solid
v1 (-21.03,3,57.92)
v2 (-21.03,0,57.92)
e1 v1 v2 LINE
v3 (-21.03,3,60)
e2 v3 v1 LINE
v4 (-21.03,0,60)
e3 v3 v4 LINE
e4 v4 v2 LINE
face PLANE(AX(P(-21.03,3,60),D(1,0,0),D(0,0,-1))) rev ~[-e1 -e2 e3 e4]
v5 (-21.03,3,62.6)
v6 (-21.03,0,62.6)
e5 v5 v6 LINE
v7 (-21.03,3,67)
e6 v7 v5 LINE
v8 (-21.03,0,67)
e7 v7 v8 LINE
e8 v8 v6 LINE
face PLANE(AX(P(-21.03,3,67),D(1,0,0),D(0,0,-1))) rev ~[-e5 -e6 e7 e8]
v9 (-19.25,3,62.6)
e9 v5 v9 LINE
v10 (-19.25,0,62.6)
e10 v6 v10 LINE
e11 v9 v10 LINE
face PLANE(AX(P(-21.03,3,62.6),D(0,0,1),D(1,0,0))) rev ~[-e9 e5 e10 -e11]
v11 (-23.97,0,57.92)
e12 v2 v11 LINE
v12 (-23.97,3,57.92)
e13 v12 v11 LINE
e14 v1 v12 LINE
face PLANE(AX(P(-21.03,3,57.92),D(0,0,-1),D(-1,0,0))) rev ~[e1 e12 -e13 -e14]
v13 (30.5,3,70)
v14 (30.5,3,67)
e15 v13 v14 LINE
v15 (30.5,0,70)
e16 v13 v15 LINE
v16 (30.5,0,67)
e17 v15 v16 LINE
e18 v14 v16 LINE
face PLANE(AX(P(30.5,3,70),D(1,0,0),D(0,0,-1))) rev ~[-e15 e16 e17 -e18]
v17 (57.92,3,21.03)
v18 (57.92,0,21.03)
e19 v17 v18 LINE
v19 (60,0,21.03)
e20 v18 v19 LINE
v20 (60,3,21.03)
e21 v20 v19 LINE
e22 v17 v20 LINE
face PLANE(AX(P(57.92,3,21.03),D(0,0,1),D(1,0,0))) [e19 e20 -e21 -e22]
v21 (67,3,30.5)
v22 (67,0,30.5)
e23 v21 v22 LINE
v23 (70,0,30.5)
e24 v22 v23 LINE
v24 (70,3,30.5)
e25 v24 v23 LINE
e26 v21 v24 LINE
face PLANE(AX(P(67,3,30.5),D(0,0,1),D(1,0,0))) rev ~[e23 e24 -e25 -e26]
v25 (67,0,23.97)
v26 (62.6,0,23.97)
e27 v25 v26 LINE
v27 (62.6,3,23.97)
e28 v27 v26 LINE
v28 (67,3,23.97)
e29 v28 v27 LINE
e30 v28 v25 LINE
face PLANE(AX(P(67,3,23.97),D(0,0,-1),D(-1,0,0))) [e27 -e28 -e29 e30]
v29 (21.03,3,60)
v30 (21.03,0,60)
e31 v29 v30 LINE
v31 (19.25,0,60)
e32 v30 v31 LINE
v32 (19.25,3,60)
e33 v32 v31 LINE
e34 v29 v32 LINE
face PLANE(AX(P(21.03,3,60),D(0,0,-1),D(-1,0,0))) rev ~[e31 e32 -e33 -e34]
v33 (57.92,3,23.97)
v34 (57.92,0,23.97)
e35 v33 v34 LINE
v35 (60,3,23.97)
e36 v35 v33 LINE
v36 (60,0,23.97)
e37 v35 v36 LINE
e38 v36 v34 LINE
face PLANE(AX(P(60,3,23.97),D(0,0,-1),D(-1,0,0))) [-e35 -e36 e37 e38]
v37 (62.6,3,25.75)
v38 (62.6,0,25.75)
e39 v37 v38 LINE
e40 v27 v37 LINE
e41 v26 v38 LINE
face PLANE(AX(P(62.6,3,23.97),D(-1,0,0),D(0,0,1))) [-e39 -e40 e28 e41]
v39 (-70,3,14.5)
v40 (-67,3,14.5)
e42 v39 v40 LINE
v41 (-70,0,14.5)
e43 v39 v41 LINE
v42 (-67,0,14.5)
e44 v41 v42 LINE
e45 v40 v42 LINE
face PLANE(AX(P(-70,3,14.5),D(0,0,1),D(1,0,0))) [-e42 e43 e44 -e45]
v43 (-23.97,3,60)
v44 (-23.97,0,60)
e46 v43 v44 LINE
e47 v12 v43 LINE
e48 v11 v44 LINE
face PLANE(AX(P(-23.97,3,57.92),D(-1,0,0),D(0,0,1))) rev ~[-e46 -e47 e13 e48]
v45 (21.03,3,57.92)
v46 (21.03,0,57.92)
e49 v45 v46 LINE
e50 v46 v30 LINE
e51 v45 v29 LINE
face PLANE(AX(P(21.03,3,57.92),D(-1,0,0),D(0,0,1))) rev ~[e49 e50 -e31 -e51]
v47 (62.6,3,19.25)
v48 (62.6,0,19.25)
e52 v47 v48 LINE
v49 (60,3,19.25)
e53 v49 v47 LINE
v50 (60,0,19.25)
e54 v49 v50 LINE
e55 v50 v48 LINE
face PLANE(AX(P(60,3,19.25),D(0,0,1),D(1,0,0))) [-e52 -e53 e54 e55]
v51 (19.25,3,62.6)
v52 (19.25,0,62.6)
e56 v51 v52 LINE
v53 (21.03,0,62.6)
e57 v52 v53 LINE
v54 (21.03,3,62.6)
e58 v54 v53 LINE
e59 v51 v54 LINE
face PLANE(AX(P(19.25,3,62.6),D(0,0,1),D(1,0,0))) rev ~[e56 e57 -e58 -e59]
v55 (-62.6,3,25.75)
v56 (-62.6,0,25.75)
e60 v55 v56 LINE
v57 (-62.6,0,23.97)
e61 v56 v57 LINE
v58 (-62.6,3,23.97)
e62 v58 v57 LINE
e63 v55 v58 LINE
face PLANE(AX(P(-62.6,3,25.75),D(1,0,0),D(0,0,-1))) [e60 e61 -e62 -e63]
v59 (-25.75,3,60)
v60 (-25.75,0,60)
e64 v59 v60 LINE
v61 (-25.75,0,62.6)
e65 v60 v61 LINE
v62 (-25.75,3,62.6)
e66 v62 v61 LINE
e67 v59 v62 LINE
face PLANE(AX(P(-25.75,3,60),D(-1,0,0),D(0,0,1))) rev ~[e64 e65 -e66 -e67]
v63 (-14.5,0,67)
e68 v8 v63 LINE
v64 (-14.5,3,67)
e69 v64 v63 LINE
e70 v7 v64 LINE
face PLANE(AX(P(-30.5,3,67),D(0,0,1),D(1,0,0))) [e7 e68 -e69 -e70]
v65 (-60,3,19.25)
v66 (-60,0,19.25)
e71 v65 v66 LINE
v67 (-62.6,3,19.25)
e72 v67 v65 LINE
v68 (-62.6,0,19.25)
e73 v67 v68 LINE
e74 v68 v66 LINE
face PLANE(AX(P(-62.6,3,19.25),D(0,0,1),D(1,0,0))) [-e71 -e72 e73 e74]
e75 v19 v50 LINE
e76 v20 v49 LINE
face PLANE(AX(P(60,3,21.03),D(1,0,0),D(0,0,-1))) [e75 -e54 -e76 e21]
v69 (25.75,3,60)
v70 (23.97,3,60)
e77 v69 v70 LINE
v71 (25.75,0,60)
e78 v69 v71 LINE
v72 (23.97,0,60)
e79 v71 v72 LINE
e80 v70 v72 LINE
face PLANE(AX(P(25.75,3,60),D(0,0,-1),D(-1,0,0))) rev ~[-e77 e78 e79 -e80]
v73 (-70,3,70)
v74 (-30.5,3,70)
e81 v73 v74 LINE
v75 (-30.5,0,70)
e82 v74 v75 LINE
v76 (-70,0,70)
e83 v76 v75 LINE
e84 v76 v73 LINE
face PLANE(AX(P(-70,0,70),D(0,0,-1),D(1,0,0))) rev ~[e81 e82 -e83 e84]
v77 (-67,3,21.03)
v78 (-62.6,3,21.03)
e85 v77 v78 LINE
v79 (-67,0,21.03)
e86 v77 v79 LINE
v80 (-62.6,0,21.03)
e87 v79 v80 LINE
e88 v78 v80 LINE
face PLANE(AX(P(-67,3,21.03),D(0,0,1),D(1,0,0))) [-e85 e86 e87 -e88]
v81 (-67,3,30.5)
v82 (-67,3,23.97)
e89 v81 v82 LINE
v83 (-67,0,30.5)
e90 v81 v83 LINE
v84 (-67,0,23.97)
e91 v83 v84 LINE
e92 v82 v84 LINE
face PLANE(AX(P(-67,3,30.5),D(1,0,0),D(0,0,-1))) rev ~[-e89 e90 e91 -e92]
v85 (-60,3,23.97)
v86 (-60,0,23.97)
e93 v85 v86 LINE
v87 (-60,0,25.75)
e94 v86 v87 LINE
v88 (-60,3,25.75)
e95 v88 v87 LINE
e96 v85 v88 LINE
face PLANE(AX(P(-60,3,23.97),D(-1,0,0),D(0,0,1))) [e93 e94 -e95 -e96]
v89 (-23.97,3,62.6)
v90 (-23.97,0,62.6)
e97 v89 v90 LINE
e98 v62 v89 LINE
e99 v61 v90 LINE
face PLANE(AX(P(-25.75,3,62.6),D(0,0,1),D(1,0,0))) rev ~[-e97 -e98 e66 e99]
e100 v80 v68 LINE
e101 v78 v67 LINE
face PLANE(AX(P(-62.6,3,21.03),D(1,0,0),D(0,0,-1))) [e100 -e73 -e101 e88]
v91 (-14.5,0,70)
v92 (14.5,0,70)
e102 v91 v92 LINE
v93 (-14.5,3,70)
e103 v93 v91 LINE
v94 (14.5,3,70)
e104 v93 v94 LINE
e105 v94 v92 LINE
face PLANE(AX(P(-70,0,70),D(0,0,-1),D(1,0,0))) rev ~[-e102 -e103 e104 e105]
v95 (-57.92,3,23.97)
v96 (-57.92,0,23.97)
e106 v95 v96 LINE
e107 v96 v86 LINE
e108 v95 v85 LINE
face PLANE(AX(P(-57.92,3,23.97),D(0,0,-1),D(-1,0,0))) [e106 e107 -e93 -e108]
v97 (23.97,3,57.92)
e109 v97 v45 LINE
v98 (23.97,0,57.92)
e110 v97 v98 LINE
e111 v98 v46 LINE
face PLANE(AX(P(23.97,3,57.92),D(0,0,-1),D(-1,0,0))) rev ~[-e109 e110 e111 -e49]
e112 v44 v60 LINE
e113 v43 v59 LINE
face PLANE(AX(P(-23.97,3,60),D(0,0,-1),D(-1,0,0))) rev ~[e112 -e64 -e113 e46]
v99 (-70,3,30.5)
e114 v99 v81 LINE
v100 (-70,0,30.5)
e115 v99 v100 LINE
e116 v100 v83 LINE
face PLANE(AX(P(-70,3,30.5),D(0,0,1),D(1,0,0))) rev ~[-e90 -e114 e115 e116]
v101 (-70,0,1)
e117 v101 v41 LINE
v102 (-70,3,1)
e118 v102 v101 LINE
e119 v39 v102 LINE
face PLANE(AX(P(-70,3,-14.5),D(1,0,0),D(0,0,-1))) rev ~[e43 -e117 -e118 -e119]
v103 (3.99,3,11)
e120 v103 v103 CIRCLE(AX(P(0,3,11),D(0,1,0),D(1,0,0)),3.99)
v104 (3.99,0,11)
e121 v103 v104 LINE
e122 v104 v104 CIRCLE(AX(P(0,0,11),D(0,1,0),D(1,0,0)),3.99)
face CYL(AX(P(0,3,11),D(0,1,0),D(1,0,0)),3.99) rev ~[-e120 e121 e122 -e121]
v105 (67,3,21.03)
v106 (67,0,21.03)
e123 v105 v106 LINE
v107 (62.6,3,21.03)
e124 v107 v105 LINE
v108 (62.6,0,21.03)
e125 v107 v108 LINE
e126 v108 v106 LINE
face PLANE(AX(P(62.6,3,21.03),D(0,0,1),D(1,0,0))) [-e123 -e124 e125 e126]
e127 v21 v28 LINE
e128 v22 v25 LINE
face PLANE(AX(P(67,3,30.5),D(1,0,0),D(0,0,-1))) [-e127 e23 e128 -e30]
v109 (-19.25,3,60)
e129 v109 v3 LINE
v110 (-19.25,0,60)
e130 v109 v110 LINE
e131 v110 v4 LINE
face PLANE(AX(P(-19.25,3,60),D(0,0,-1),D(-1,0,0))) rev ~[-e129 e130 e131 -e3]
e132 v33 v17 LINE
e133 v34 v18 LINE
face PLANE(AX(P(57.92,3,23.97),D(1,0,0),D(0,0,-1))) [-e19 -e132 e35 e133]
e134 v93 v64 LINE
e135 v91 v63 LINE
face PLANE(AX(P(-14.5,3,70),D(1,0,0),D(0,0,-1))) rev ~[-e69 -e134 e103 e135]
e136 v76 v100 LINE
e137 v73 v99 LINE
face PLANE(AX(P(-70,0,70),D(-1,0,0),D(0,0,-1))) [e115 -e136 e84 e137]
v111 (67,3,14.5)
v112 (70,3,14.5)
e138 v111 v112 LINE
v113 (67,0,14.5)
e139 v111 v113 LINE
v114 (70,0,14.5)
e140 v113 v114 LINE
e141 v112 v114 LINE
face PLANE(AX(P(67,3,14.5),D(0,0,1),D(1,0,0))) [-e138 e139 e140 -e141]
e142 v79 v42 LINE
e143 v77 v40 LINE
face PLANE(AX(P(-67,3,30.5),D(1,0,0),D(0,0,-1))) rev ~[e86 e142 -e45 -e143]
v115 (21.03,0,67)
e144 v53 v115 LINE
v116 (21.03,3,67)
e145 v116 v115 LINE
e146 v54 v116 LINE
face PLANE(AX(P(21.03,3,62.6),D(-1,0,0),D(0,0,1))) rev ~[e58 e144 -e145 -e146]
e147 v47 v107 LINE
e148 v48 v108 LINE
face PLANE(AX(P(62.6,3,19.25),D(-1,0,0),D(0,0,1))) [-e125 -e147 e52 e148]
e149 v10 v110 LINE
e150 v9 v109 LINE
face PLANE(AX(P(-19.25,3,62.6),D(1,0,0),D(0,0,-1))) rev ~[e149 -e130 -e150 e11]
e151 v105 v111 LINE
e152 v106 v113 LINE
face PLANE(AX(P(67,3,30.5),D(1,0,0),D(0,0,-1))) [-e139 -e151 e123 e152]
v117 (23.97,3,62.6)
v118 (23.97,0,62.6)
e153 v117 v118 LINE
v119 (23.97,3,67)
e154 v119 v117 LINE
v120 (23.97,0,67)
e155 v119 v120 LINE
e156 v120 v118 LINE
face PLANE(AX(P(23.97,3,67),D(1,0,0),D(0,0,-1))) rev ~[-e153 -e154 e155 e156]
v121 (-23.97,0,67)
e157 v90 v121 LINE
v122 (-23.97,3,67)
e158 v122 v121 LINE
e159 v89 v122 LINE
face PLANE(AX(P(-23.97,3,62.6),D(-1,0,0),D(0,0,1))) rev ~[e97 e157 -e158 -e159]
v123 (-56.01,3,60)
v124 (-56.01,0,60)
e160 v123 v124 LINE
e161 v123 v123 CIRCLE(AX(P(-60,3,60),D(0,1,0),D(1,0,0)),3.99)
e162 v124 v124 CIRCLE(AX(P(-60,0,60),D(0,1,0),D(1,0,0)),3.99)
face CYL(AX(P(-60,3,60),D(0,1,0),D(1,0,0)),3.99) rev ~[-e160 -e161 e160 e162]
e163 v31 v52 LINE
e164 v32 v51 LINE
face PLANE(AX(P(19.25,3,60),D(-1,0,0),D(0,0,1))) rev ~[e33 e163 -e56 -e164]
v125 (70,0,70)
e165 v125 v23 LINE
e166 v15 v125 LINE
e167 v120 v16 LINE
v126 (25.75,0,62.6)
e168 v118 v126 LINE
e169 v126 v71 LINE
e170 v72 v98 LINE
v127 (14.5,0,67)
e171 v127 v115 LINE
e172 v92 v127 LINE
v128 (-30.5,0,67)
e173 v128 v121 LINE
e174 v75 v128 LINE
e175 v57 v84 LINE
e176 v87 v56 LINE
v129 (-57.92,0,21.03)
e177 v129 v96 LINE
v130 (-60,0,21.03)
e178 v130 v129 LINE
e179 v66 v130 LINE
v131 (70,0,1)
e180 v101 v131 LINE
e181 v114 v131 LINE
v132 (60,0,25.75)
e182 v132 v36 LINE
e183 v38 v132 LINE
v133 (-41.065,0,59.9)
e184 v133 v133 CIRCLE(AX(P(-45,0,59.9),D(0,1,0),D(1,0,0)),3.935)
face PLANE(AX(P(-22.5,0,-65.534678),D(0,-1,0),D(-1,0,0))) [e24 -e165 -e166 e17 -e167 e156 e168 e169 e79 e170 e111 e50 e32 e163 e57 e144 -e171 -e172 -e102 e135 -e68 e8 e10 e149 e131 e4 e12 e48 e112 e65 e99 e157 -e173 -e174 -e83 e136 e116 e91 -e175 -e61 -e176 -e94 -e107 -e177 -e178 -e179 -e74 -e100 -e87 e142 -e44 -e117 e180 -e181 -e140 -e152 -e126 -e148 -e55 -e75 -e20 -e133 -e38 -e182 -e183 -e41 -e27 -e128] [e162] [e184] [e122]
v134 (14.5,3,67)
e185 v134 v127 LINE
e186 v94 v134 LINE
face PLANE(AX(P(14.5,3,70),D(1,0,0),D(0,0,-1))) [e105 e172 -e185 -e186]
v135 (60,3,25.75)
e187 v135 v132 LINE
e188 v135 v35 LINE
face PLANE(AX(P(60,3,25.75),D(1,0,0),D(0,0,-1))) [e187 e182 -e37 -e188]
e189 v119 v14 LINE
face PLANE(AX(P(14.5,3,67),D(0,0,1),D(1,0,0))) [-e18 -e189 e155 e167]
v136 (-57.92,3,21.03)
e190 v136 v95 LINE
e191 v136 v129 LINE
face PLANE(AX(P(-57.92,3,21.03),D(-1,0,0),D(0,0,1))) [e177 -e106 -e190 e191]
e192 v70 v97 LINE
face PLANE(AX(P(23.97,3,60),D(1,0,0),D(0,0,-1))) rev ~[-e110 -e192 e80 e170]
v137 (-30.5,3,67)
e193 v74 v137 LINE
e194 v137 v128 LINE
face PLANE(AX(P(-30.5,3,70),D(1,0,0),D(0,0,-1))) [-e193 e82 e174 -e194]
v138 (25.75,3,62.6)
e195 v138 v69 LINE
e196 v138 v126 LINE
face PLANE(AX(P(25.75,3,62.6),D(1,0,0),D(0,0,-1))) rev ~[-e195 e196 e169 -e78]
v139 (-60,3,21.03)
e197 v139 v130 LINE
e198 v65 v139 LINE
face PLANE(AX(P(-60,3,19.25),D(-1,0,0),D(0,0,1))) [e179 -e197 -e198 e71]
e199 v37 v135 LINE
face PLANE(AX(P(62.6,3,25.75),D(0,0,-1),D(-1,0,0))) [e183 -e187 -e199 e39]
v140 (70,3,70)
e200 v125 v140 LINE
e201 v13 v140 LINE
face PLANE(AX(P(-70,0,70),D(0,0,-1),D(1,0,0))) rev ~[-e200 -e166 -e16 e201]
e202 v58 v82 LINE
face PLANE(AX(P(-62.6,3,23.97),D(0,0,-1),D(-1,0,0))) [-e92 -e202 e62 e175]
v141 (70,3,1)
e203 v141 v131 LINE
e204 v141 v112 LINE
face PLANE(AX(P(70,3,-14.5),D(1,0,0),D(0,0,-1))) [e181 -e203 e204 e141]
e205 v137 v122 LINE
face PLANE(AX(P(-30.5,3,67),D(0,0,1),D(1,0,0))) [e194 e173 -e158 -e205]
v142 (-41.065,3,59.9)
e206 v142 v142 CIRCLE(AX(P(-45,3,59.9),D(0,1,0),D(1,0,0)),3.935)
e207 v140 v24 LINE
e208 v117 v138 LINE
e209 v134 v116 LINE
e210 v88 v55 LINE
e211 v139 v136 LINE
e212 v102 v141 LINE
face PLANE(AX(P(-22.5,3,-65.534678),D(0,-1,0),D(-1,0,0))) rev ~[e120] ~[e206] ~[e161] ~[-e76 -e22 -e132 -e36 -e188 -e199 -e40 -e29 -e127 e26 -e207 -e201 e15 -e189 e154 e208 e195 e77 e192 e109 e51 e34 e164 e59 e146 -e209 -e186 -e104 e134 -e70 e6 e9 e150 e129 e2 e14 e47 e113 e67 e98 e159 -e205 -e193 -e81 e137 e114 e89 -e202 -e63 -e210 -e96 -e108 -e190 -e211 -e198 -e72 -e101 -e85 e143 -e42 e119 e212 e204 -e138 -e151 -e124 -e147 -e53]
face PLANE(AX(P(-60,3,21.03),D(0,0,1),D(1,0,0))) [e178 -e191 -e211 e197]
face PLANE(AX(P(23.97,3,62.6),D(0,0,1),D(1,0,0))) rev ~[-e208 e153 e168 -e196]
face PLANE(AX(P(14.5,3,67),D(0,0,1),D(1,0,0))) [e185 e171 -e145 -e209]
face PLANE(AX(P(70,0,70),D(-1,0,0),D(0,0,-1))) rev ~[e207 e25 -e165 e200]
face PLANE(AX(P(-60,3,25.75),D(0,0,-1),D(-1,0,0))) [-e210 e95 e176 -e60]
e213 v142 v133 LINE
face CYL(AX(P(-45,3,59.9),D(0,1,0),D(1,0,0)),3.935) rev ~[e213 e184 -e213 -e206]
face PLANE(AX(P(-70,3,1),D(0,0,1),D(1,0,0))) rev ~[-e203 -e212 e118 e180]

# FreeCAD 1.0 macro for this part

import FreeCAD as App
import Part
import Sketcher
from FreeCAD import Vector


def add_polygon(sketch, points):
    """Adds a closed chain of lines whose ends are joined by coincident constraints."""
    first, n = sketch.GeometryCount, len(points)
    for a, b in zip(points, points[1:] + points[:1]):
        sketch.addGeometry(Part.LineSegment(App.Vector(*a, 0), App.Vector(*b, 0)), False)
    for i in range(n):
        sketch.addConstraint(Sketcher.Constraint("Coincident", first + i, 2, first + (i + 1) % n, 1))

doc = App.newDocument("Part")
body = doc.addObject("PartDesign::Body", "Body")
body.AllowCompound = True

# Sketch on XZ plane
sketch1 = body.newObject("Sketcher::SketchObject", "Sketch")
sketch1.AttachmentSupport = (doc.getObject("XZ_Plane"), [""])
sketch1.MapMode = "FlatFace"
add_polygon(sketch1, [(-70, -70), (-70, 70), (70, 70), (70, -70)])  # lines 0-3
sketch1.addConstraint(Sketcher.Constraint("Vertical", 0))
sketch1.addConstraint(Sketcher.Constraint("Horizontal", 1))
sketch1.addConstraint(Sketcher.Constraint("Vertical", 2))
sketch1.addConstraint(Sketcher.Constraint("Horizontal", 3))
sketch1.addConstraint(Sketcher.Constraint("Symmetric", 0, 2, 2, 2, -1, 1))
sketch1.addConstraint(Sketcher.Constraint("Equal", 3, 0))
sketch1.addConstraint(Sketcher.Constraint("DistanceX", 1, 1, 1, 2, 140.0))
pad1 = body.newObject("PartDesign::Pad", "Pad")
pad1.Profile = sketch1
pad1.Length = 3
pad1.Reversed = True

# Sketch on XZ plane
sketch2 = body.newObject("Sketcher::SketchObject", "Sketch001")
sketch2.AttachmentSupport = (doc.getObject("XZ_Plane"), [""])
sketch2.MapMode = "FlatFace"
sketch2.AttachmentOffset = App.Placement(Vector(0, 0, -3), App.Rotation())
add_polygon(sketch2, [(-30.5, -70), (-30.5, -67), (-14.5, -67), (-14.5, -70)])  # lines 0-3
add_polygon(sketch2, [(-30.5, 67), (-30.5, 70), (-14.5, 70), (-14.5, 67)])  # lines 4-7
add_polygon(sketch2, [(14.5, 67), (14.5, 70), (30.5, 70), (30.5, 67)])  # lines 8-11
add_polygon(sketch2, [(14.5, -70), (14.5, -67), (30.5, -67), (30.5, -70)])  # lines 12-15
add_polygon(sketch2, [(-70, -30.5), (-70, -14.5), (-67, -14.5), (-67, -30.5)])  # lines 16-19
add_polygon(sketch2, [(-70, 14.5), (-70, 30.5), (-67, 30.5), (-67, 14.5)])  # lines 20-23
add_polygon(sketch2, [(67, 14.5), (67, 30.5), (70, 30.5), (70, 14.5)])  # lines 24-27
add_polygon(sketch2, [(67, -30.5), (67, -14.5), (70, -14.5), (70, -30.5)])  # lines 28-31
sketch2.addConstraint(Sketcher.Constraint("Vertical", 0))
sketch2.addConstraint(Sketcher.Constraint("Horizontal", 1))
sketch2.addConstraint(Sketcher.Constraint("Vertical", 2))
sketch2.addConstraint(Sketcher.Constraint("Horizontal", 3))
sketch2.addConstraint(Sketcher.Constraint("Vertical", 4))
sketch2.addConstraint(Sketcher.Constraint("Horizontal", 5))
sketch2.addConstraint(Sketcher.Constraint("Vertical", 6))
sketch2.addConstraint(Sketcher.Constraint("Horizontal", 7))
sketch2.addConstraint(Sketcher.Constraint("Vertical", 8))
sketch2.addConstraint(Sketcher.Constraint("Horizontal", 9))
sketch2.addConstraint(Sketcher.Constraint("Vertical", 10))
sketch2.addConstraint(Sketcher.Constraint("Horizontal", 11))
sketch2.addConstraint(Sketcher.Constraint("Vertical", 12))
sketch2.addConstraint(Sketcher.Constraint("Horizontal", 13))
sketch2.addConstraint(Sketcher.Constraint("Vertical", 14))
sketch2.addConstraint(Sketcher.Constraint("Horizontal", 15))
sketch2.addConstraint(Sketcher.Constraint("Vertical", 16))
sketch2.addConstraint(Sketcher.Constraint("Horizontal", 17))
sketch2.addConstraint(Sketcher.Constraint("Vertical", 18))
sketch2.addConstraint(Sketcher.Constraint("Horizontal", 19))
sketch2.addConstraint(Sketcher.Constraint("Vertical", 20))
sketch2.addConstraint(Sketcher.Constraint("Horizontal", 21))
sketch2.addConstraint(Sketcher.Constraint("Vertical", 22))
sketch2.addConstraint(Sketcher.Constraint("Horizontal", 23))
sketch2.addConstraint(Sketcher.Constraint("Vertical", 24))
sketch2.addConstraint(Sketcher.Constraint("Horizontal", 25))
sketch2.addConstraint(Sketcher.Constraint("Vertical", 26))
sketch2.addConstraint(Sketcher.Constraint("Horizontal", 27))
sketch2.addConstraint(Sketcher.Constraint("Vertical", 28))
sketch2.addConstraint(Sketcher.Constraint("Horizontal", 29))
sketch2.addConstraint(Sketcher.Constraint("Vertical", 30))
sketch2.addConstraint(Sketcher.Constraint("Horizontal", 31))
sketch2.addConstraint(Sketcher.Constraint("Symmetric", 2, 2, 8, 2, -1, 1))
sketch2.addConstraint(Sketcher.Constraint("Symmetric", 0, 2, 10, 2, -1, 1))
sketch2.addConstraint(Sketcher.Constraint("Symmetric", 6, 2, 12, 2, -1, 1))
sketch2.addConstraint(Sketcher.Constraint("Symmetric", 4, 2, 14, 2, -1, 1))
sketch2.addConstraint(Sketcher.Constraint("Symmetric", 18, 2, 24, 2, -1, 1))
sketch2.addConstraint(Sketcher.Constraint("Symmetric", 16, 2, 26, 2, -1, 1))
sketch2.addConstraint(Sketcher.Constraint("Symmetric", 22, 2, 28, 2, -1, 1))
sketch2.addConstraint(Sketcher.Constraint("Symmetric", 20, 2, 30, 2, -1, 1))
sketch2.addConstraint(Sketcher.Constraint("Symmetric", 5, 2, 8, 2, -2))
sketch2.addConstraint(Sketcher.Constraint("Symmetric", 7, 2, 10, 2, -2))
sketch2.addConstraint(Sketcher.Constraint("Symmetric", 21, 2, 24, 2, -2))
sketch2.addConstraint(Sketcher.Constraint("Symmetric", 23, 2, 26, 2, -2))
sketch2.addConstraint(Sketcher.Constraint("Equal", 31, 0))
sketch2.addConstraint(Sketcher.Constraint("Equal", 15, 16))
sketch2.addConstraint(Sketcher.Constraint("DistanceX", 1, 1, 1, 2, 16.0))
sketch2.addConstraint(Sketcher.Constraint("DistanceX", 17, 1, 17, 2, 3.0))
sketch2.addConstraint(Sketcher.Constraint("DistanceY", 0, 2, -1, 1, 67.0))
sketch2.addConstraint(Sketcher.Constraint("DistanceX", 16, 2, -1, 1, 70.0))
sketch2.addConstraint(Sketcher.Constraint("DistanceX", 5, 2, 8, 2, 29.0))
sketch2.addConstraint(Sketcher.Constraint("DistanceY", 16, 2, 20, 2, 45.0))
pocket1 = body.newObject("PartDesign::Pocket", "Pocket")
pocket1.Profile = sketch2
pocket1.Length = 3
pocket1.Reversed = True

# Sketch on XZ plane
sketch3 = body.newObject("Sketcher::SketchObject", "Sketch002")
sketch3.AttachmentSupport = (doc.getObject("XZ_Plane"), [""])
sketch3.MapMode = "FlatFace"
sketch3.AttachmentOffset = App.Placement(Vector(0, 0, -3), App.Rotation())
add_polygon(sketch3, [(-70, -70), (-70, -60), (-67, -60), (-67, -70)])  # lines 0-3
sketch3.addConstraint(Sketcher.Constraint("Vertical", 0))
sketch3.addConstraint(Sketcher.Constraint("Horizontal", 1))
sketch3.addConstraint(Sketcher.Constraint("Vertical", 2))
sketch3.addConstraint(Sketcher.Constraint("Horizontal", 3))
sketch3.addConstraint(Sketcher.Constraint("DistanceX", 1, 1, 1, 2, 3.0))
sketch3.addConstraint(Sketcher.Constraint("DistanceY", 0, 1, 0, 2, 10.0))
sketch3.addConstraint(Sketcher.Constraint("DistanceX", 0, 2, -1, 1, 70.0))
sketch3.addConstraint(Sketcher.Constraint("DistanceY", 0, 2, -1, 1, 60.0))
pocket2 = body.newObject("PartDesign::Pocket", "Pocket001")
pocket2.Profile = sketch3
pocket2.Length = 10
pocket2.Reversed = True

# Sketch on XZ plane
sketch4 = body.newObject("Sketcher::SketchObject", "Sketch003")
sketch4.AttachmentSupport = (doc.getObject("XZ_Plane"), [""])
sketch4.MapMode = "FlatFace"
sketch4.AttachmentOffset = App.Placement(Vector(0, 0, -3), App.Rotation())
add_polygon(sketch4, [(67, -70), (67, -60), (70, -60), (70, -70)])  # lines 0-3
sketch4.addConstraint(Sketcher.Constraint("Vertical", 0))
sketch4.addConstraint(Sketcher.Constraint("Horizontal", 1))
sketch4.addConstraint(Sketcher.Constraint("Vertical", 2))
sketch4.addConstraint(Sketcher.Constraint("Horizontal", 3))
sketch4.addConstraint(Sketcher.Constraint("DistanceX", 1, 1, 1, 2, 3.0))
sketch4.addConstraint(Sketcher.Constraint("DistanceY", 0, 1, 0, 2, 10.0))
sketch4.addConstraint(Sketcher.Constraint("DistanceX", -1, 1, 0, 2, 67.0))
sketch4.addConstraint(Sketcher.Constraint("DistanceY", 0, 2, -1, 1, 60.0))
pocket3 = body.newObject("PartDesign::Pocket", "Pocket002")
pocket3.Profile = sketch4
pocket3.Length = 3
pocket3.Reversed = True

# Sketch on XZ plane
sketch5 = body.newObject("Sketcher::SketchObject", "Sketch004")
sketch5.AttachmentSupport = (doc.getObject("XZ_Plane"), [""])
sketch5.MapMode = "FlatFace"
sketch5.AttachmentOffset = App.Placement(Vector(0, 0, -3), App.Rotation())
add_polygon(sketch5, [(-21.03, -67), (-23.97, -67), (-23.97, -62.6), (-25.75, -62.6), (-25.75, -60), (-23.97, -60), (-23.97, -57.92), (-21.03, -57.92), (-21.03, -60), (-19.25, -60), (-19.25, -62.6), (-21.03, -62.6)])  # lines 0-11
add_polygon(sketch5, [(-21.03, 67), (-21.03, 62.6), (-19.25, 62.6), (-19.25, 60), (-21.03, 60), (-21.03, 57.92), (-23.97, 57.92), (-23.97, 60), (-25.75, 60), (-25.75, 62.6), (-23.97, 62.6), (-23.97, 67)])  # lines 12-23
add_polygon(sketch5, [(21.03, -67), (21.03, -62.6), (19.25, -62.6), (19.25, -60), (21.03, -60), (21.03, -57.92), (23.97, -57.92), (23.97, -60), (25.75, -60), (25.75, -62.6), (23.97, -62.6), (23.97, -67)])  # lines 24-35
add_polygon(sketch5, [(21.03, 67), (23.97, 67), (23.97, 62.6), (25.75, 62.6), (25.75, 60), (23.97, 60), (23.97, 57.92), (21.03, 57.92), (21.03, 60), (19.25, 60), (19.25, 62.6), (21.03, 62.6)])  # lines 36-47
sketch5.addConstraint(Sketcher.Constraint("Horizontal", 0))
sketch5.addConstraint(Sketcher.Constraint("Vertical", 1))
sketch5.addConstraint(Sketcher.Constraint("Horizontal", 2))
sketch5.addConstraint(Sketcher.Constraint("Vertical", 3))
sketch5.addConstraint(Sketcher.Constraint("Horizontal", 4))
sketch5.addConstraint(Sketcher.Constraint("Vertical", 5))
sketch5.addConstraint(Sketcher.Constraint("Horizontal", 6))
sketch5.addConstraint(Sketcher.Constraint("Vertical", 7))
sketch5.addConstraint(Sketcher.Constraint("Horizontal", 8))
sketch5.addConstraint(Sketcher.Constraint("Vertical", 9))
sketch5.addConstraint(Sketcher.Constraint("Horizontal", 10))
sketch5.addConstraint(Sketcher.Constraint("Vertical", 11))
sketch5.addConstraint(Sketcher.Constraint("Vertical", 12))
sketch5.addConstraint(Sketcher.Constraint("Horizontal", 13))
sketch5.addConstraint(Sketcher.Constraint("Vertical", 14))
sketch5.addConstraint(Sketcher.Constraint("Horizontal", 15))
sketch5.addConstraint(Sketcher.Constraint("Vertical", 16))
sketch5.addConstraint(Sketcher.Constraint("Horizontal", 17))
sketch5.addConstraint(Sketcher.Constraint("Vertical", 18))
sketch5.addConstraint(Sketcher.Constraint("Horizontal", 19))
sketch5.addConstraint(Sketcher.Constraint("Vertical", 20))
sketch5.addConstraint(Sketcher.Constraint("Horizontal", 21))
sketch5.addConstraint(Sketcher.Constraint("Vertical", 22))
sketch5.addConstraint(Sketcher.Constraint("Horizontal", 23))
sketch5.addConstraint(Sketcher.Constraint("Vertical", 24))
sketch5.addConstraint(Sketcher.Constraint("Horizontal", 25))
sketch5.addConstraint(Sketcher.Constraint("Vertical", 26))
sketch5.addConstraint(Sketcher.Constraint("Horizontal", 27))
sketch5.addConstraint(Sketcher.Constraint("Vertical", 28))
sketch5.addConstraint(Sketcher.Constraint("Horizontal", 29))
sketch5.addConstraint(Sketcher.Constraint("Vertical", 30))
sketch5.addConstraint(Sketcher.Constraint("Horizontal", 31))
sketch5.addConstraint(Sketcher.Constraint("Vertical", 32))
sketch5.addConstraint(Sketcher.Constraint("Horizontal", 33))
sketch5.addConstraint(Sketcher.Constraint("Vertical", 34))
sketch5.addConstraint(Sketcher.Constraint("Horizontal", 35))
sketch5.addConstraint(Sketcher.Constraint("Horizontal", 36))
sketch5.addConstraint(Sketcher.Constraint("Vertical", 37))
sketch5.addConstraint(Sketcher.Constraint("Horizontal", 38))
sketch5.addConstraint(Sketcher.Constraint("Vertical", 39))
sketch5.addConstraint(Sketcher.Constraint("Horizontal", 40))
sketch5.addConstraint(Sketcher.Constraint("Vertical", 41))
sketch5.addConstraint(Sketcher.Constraint("Horizontal", 42))
sketch5.addConstraint(Sketcher.Constraint("Vertical", 43))
sketch5.addConstraint(Sketcher.Constraint("Horizontal", 44))
sketch5.addConstraint(Sketcher.Constraint("Vertical", 45))
sketch5.addConstraint(Sketcher.Constraint("Horizontal", 46))
sketch5.addConstraint(Sketcher.Constraint("Vertical", 47))
sketch5.addConstraint(Sketcher.Constraint("Symmetric", 12, 2, 24, 2, -1, 1))
sketch5.addConstraint(Sketcher.Constraint("Symmetric", 14, 2, 26, 2, -1, 1))
sketch5.addConstraint(Sketcher.Constraint("Symmetric", 16, 2, 28, 2, -1, 1))
sketch5.addConstraint(Sketcher.Constraint("Symmetric", 18, 2, 30, 2, -1, 1))
sketch5.addConstraint(Sketcher.Constraint("Symmetric", 20, 2, 32, 2, -1, 1))
sketch5.addConstraint(Sketcher.Constraint("Symmetric", 22, 2, 34, 2, -1, 1))
sketch5.addConstraint(Sketcher.Constraint("Symmetric", 0, 2, 36, 2, -1, 1))
sketch5.addConstraint(Sketcher.Constraint("Symmetric", 2, 2, 38, 2, -1, 1))
sketch5.addConstraint(Sketcher.Constraint("Symmetric", 4, 2, 40, 2, -1, 1))
sketch5.addConstraint(Sketcher.Constraint("Symmetric", 6, 2, 42, 2, -1, 1))
sketch5.addConstraint(Sketcher.Constraint("Symmetric", 8, 2, 44, 2, -1, 1))
sketch5.addConstraint(Sketcher.Constraint("Symmetric", 10, 2, 46, 2, -1, 1))
sketch5.addConstraint(Sketcher.Constraint("Symmetric", 10, 2, 24, 2, -2))
sketch5.addConstraint(Sketcher.Constraint("Symmetric", 8, 2, 26, 2, -2))
sketch5.addConstraint(Sketcher.Constraint("Symmetric", 6, 2, 28, 2, -2))
sketch5.addConstraint(Sketcher.Constraint("Symmetric", 4, 2, 30, 2, -2))
sketch5.addConstraint(Sketcher.Constraint("Symmetric", 2, 2, 32, 2, -2))
sketch5.addConstraint(Sketcher.Constraint("Symmetric", 0, 2, 34, 2, -2))
sketch5.addConstraint(Sketcher.Constraint("Horizontal", 4, 2, 7, 2))
sketch5.addConstraint(Sketcher.Constraint("Horizontal", 2, 2, 9, 2))
sketch5.addConstraint(Sketcher.Constraint("Vertical", 1, 2, 4, 2))
sketch5.addConstraint(Sketcher.Constraint("Vertical", 7, 2, 10, 2))
sketch5.addConstraint(Sketcher.Constraint("Equal", 4, 8))
sketch5.addConstraint(Sketcher.Constraint("DistanceY", 1, 1, 1, 2, 4.4))
sketch5.addConstraint(Sketcher.Constraint("DistanceY", 3, 1, 3, 2, 2.6))
sketch5.addConstraint(Sketcher.Constraint("DistanceY", 0, 2, -1, 1, 67.0))
sketch5.addConstraint(Sketcher.Constraint("DistanceX", 23, 2, 36, 2, 45.0))
sketch5.addConstraint(Sketcher.Constraint("DistanceX", 0, 2, 0, 1, 2.94))
sketch5.addConstraint(Sketcher.Constraint("DistanceX", 2, 2, 2, 1, 1.78))
sketch5.addConstraint(Sketcher.Constraint("DistanceY", 5, 1, 5, 2, 2.08))
pocket4 = body.newObject("PartDesign::Pocket", "Pocket003")
pocket4.Profile = sketch5
pocket4.Length = 3
pocket4.Reversed = True

# Sketch on XZ plane
sketch6 = body.newObject("Sketcher::SketchObject", "Sketch005")
sketch6.AttachmentSupport = (doc.getObject("XZ_Plane"), [""])
sketch6.MapMode = "FlatFace"
sketch6.AttachmentOffset = App.Placement(Vector(0, 0, -3), App.Rotation())
add_polygon(sketch6, [(67, 23.97), (67, 21.03), (62.6, 21.03), (62.6, 19.25), (60, 19.25), (60, 21.03), (57.92, 21.03), (57.92, 23.97), (60, 23.97), (60, 25.75), (62.6, 25.75), (62.6, 23.97)])  # lines 0-11
add_polygon(sketch6, [(62.6, -21.03), (67, -21.03), (67, -23.97), (62.6, -23.97), (62.6, -25.75), (60, -25.75), (60, -23.97), (57.92, -23.97), (57.92, -21.03), (60, -21.03), (60, -19.25), (62.6, -19.25)])  # lines 12-23
add_polygon(sketch6, [(-62.6, 21.03), (-67, 21.03), (-67, 23.97), (-62.6, 23.97), (-62.6, 25.75), (-60, 25.75), (-60, 23.97), (-57.92, 23.97), (-57.92, 21.03), (-60, 21.03), (-60, 19.25), (-62.6, 19.25)])  # lines 24-35
add_polygon(sketch6, [(-67, -23.97), (-67, -21.03), (-62.6, -21.03), (-62.6, -19.25), (-60, -19.25), (-60, -21.03), (-57.92, -21.03), (-57.92, -23.97), (-60, -23.97), (-60, -25.75), (-62.6, -25.75), (-62.6, -23.97)])  # lines 36-47
sketch6.addConstraint(Sketcher.Constraint("Vertical", 0))
sketch6.addConstraint(Sketcher.Constraint("Horizontal", 1))
sketch6.addConstraint(Sketcher.Constraint("Vertical", 2))
sketch6.addConstraint(Sketcher.Constraint("Horizontal", 3))
sketch6.addConstraint(Sketcher.Constraint("Vertical", 4))
sketch6.addConstraint(Sketcher.Constraint("Horizontal", 5))
sketch6.addConstraint(Sketcher.Constraint("Vertical", 6))
sketch6.addConstraint(Sketcher.Constraint("Horizontal", 7))
sketch6.addConstraint(Sketcher.Constraint("Vertical", 8))
sketch6.addConstraint(Sketcher.Constraint("Horizontal", 9))
sketch6.addConstraint(Sketcher.Constraint("Vertical", 10))
sketch6.addConstraint(Sketcher.Constraint("Horizontal", 11))
sketch6.addConstraint(Sketcher.Constraint("Horizontal", 12))
sketch6.addConstraint(Sketcher.Constraint("Vertical", 13))
sketch6.addConstraint(Sketcher.Constraint("Horizontal", 14))
sketch6.addConstraint(Sketcher.Constraint("Vertical", 15))
sketch6.addConstraint(Sketcher.Constraint("Horizontal", 16))
sketch6.addConstraint(Sketcher.Constraint("Vertical", 17))
sketch6.addConstraint(Sketcher.Constraint("Horizontal", 18))
sketch6.addConstraint(Sketcher.Constraint("Vertical", 19))
sketch6.addConstraint(Sketcher.Constraint("Horizontal", 20))
sketch6.addConstraint(Sketcher.Constraint("Vertical", 21))
sketch6.addConstraint(Sketcher.Constraint("Horizontal", 22))
sketch6.addConstraint(Sketcher.Constraint("Vertical", 23))
sketch6.addConstraint(Sketcher.Constraint("Horizontal", 24))
sketch6.addConstraint(Sketcher.Constraint("Vertical", 25))
sketch6.addConstraint(Sketcher.Constraint("Horizontal", 26))
sketch6.addConstraint(Sketcher.Constraint("Vertical", 27))
sketch6.addConstraint(Sketcher.Constraint("Horizontal", 28))
sketch6.addConstraint(Sketcher.Constraint("Vertical", 29))
sketch6.addConstraint(Sketcher.Constraint("Horizontal", 30))
sketch6.addConstraint(Sketcher.Constraint("Vertical", 31))
sketch6.addConstraint(Sketcher.Constraint("Horizontal", 32))
sketch6.addConstraint(Sketcher.Constraint("Vertical", 33))
sketch6.addConstraint(Sketcher.Constraint("Horizontal", 34))
sketch6.addConstraint(Sketcher.Constraint("Vertical", 35))
sketch6.addConstraint(Sketcher.Constraint("Vertical", 36))
sketch6.addConstraint(Sketcher.Constraint("Horizontal", 37))
sketch6.addConstraint(Sketcher.Constraint("Vertical", 38))
sketch6.addConstraint(Sketcher.Constraint("Horizontal", 39))
sketch6.addConstraint(Sketcher.Constraint("Vertical", 40))
sketch6.addConstraint(Sketcher.Constraint("Horizontal", 41))
sketch6.addConstraint(Sketcher.Constraint("Vertical", 42))
sketch6.addConstraint(Sketcher.Constraint("Horizontal", 43))
sketch6.addConstraint(Sketcher.Constraint("Vertical", 44))
sketch6.addConstraint(Sketcher.Constraint("Horizontal", 45))
sketch6.addConstraint(Sketcher.Constraint("Vertical", 46))
sketch6.addConstraint(Sketcher.Constraint("Horizontal", 47))
sketch6.addConstraint(Sketcher.Constraint("Symmetric", 12, 2, 24, 2, -1, 1))
sketch6.addConstraint(Sketcher.Constraint("Symmetric", 14, 2, 26, 2, -1, 1))
sketch6.addConstraint(Sketcher.Constraint("Symmetric", 16, 2, 28, 2, -1, 1))
sketch6.addConstraint(Sketcher.Constraint("Symmetric", 18, 2, 30, 2, -1, 1))
sketch6.addConstraint(Sketcher.Constraint("Symmetric", 20, 2, 32, 2, -1, 1))
sketch6.addConstraint(Sketcher.Constraint("Symmetric", 22, 2, 34, 2, -1, 1))
sketch6.addConstraint(Sketcher.Constraint("Symmetric", 0, 2, 36, 2, -1, 1))
sketch6.addConstraint(Sketcher.Constraint("Symmetric", 2, 2, 38, 2, -1, 1))
sketch6.addConstraint(Sketcher.Constraint("Symmetric", 4, 2, 40, 2, -1, 1))
sketch6.addConstraint(Sketcher.Constraint("Symmetric", 6, 2, 42, 2, -1, 1))
sketch6.addConstraint(Sketcher.Constraint("Symmetric", 8, 2, 44, 2, -1, 1))
sketch6.addConstraint(Sketcher.Constraint("Symmetric", 10, 2, 46, 2, -1, 1))
sketch6.addConstraint(Sketcher.Constraint("Symmetric", 0, 2, 24, 2, -2))
sketch6.addConstraint(Sketcher.Constraint("Symmetric", 10, 2, 26, 2, -2))
sketch6.addConstraint(Sketcher.Constraint("Symmetric", 8, 2, 28, 2, -2))
sketch6.addConstraint(Sketcher.Constraint("Symmetric", 6, 2, 30, 2, -2))
sketch6.addConstraint(Sketcher.Constraint("Symmetric", 4, 2, 32, 2, -2))
sketch6.addConstraint(Sketcher.Constraint("Symmetric", 2, 2, 34, 2, -2))
sketch6.addConstraint(Sketcher.Constraint("Horizontal", 1, 2, 4, 2))
sketch6.addConstraint(Sketcher.Constraint("Horizontal", 7, 2, 10, 2))
sketch6.addConstraint(Sketcher.Constraint("Vertical", 4, 2, 7, 2))
sketch6.addConstraint(Sketcher.Constraint("Vertical", 2, 2, 9, 2))
sketch6.addConstraint(Sketcher.Constraint("Equal", 4, 8))
sketch6.addConstraint(Sketcher.Constraint("DistanceX", 1, 2, 1, 1, 4.4))
sketch6.addConstraint(Sketcher.Constraint("DistanceX", 3, 2, 3, 1, 2.6))
sketch6.addConstraint(Sketcher.Constraint("DistanceX", -1, 1, 0, 2, 67.0))
sketch6.addConstraint(Sketcher.Constraint("DistanceY", 13, 2, 0, 2, 45.0))
sketch6.addConstraint(Sketcher.Constraint("DistanceX", 5, 2, 5, 1, 2.08))
sketch6.addConstraint(Sketcher.Constraint("DistanceY", 0, 2, 0, 1, 2.94))
sketch6.addConstraint(Sketcher.Constraint("DistanceY", 2, 2, 2, 1, 1.78))
pocket5 = body.newObject("PartDesign::Pocket", "Pocket004")
pocket5.Profile = sketch6
pocket5.Length = 3
pocket5.Reversed = True

# Sketch on XZ plane
sketch7 = body.newObject("Sketcher::SketchObject", "Sketch006")
sketch7.AttachmentSupport = (doc.getObject("XZ_Plane"), [""])
sketch7.MapMode = "FlatFace"
sketch7.AttachmentOffset = App.Placement(Vector(0, 0, -3), App.Rotation())
add_polygon(sketch7, [(-67, -30.5), (-70, -30.5), (-70, -14.5), (-67, -14.5), (-67, -21.03), (-62.6, -21.03), (-62.6, -19.25), (-60, -19.25), (-60, -21.03), (-57.92, -21.03), (-57.92, -23.97), (-60, -23.97), (-60, -25.75), (-62.6, -25.75), (-62.6, -23.97), (-67, -23.97)])  # lines 0-15
sketch7.addConstraint(Sketcher.Constraint("Horizontal", 0))
sketch7.addConstraint(Sketcher.Constraint("Vertical", 1))
sketch7.addConstraint(Sketcher.Constraint("Horizontal", 2))
sketch7.addConstraint(Sketcher.Constraint("Vertical", 3))
sketch7.addConstraint(Sketcher.Constraint("Horizontal", 4))
sketch7.addConstraint(Sketcher.Constraint("Vertical", 5))
sketch7.addConstraint(Sketcher.Constraint("Horizontal", 6))
sketch7.addConstraint(Sketcher.Constraint("Vertical", 7))
sketch7.addConstraint(Sketcher.Constraint("Horizontal", 8))
sketch7.addConstraint(Sketcher.Constraint("Vertical", 9))
sketch7.addConstraint(Sketcher.Constraint("Horizontal", 10))
sketch7.addConstraint(Sketcher.Constraint("Vertical", 11))
sketch7.addConstraint(Sketcher.Constraint("Horizontal", 12))
sketch7.addConstraint(Sketcher.Constraint("Vertical", 13))
sketch7.addConstraint(Sketcher.Constraint("Horizontal", 14))
sketch7.addConstraint(Sketcher.Constraint("Vertical", 15))
sketch7.addConstraint(Sketcher.Constraint("Horizontal", 4, 2, 7, 2))
sketch7.addConstraint(Sketcher.Constraint("Horizontal", 10, 2, 13, 2))
sketch7.addConstraint(Sketcher.Constraint("Vertical", 7, 2, 10, 2))
sketch7.addConstraint(Sketcher.Constraint("Vertical", 5, 2, 12, 2))
sketch7.addConstraint(Sketcher.Constraint("Vertical", 3, 2, 14, 2))
sketch7.addConstraint(Sketcher.Constraint("Equal", 7, 11))
sketch7.addConstraint(Sketcher.Constraint("Equal", 3, 15))
sketch7.addConstraint(Sketcher.Constraint("DistanceX", 0, 2, 0, 1, 3.0))
sketch7.addConstraint(Sketcher.Constraint("DistanceY", 1, 1, 1, 2, 16.0))
sketch7.addConstraint(Sketcher.Constraint("DistanceX", 4, 1, 4, 2, 4.4))
sketch7.addConstraint(Sketcher.Constraint("DistanceX", 6, 1, 6, 2, 2.6))
sketch7.addConstraint(Sketcher.Constraint("DistanceX", 0, 2, -1, 1, 70.0))
sketch7.addConstraint(Sketcher.Constraint("DistanceX", 8, 1, 8, 2, 2.08))
sketch7.addConstraint(Sketcher.Constraint("DistanceY", 3, 2, 3, 1, 6.53))
sketch7.addConstraint(Sketcher.Constraint("DistanceY", 5, 1, 5, 2, 1.78))
sketch7.addConstraint(Sketcher.Constraint("DistanceY", 0, 2, -1, 1, 30.5))
pad2 = body.newObject("PartDesign::Pad", "Pad001")
pad2.Profile = sketch7
pad2.Length = 3

# Sketch on XZ plane
sketch8 = body.newObject("Sketcher::SketchObject", "Sketch007")
sketch8.AttachmentSupport = (doc.getObject("XZ_Plane"), [""])
sketch8.MapMode = "FlatFace"
sketch8.AttachmentOffset = App.Placement(Vector(0, 0, -3), App.Rotation())
add_polygon(sketch8, [(70, -30.5), (67, -30.5), (67, -23.97), (62.6, -23.97), (62.6, -25.75), (60, -25.75), (60, -23.97), (57.92, -23.97), (57.92, -21.03), (60, -21.03), (60, -19.25), (62.6, -19.25), (62.6, -21.03), (67, -21.03), (67, -14.5), (70, -14.5)])  # lines 0-15
sketch8.addConstraint(Sketcher.Constraint("Horizontal", 0))
sketch8.addConstraint(Sketcher.Constraint("Vertical", 1))
sketch8.addConstraint(Sketcher.Constraint("Horizontal", 2))
sketch8.addConstraint(Sketcher.Constraint("Vertical", 3))
sketch8.addConstraint(Sketcher.Constraint("Horizontal", 4))
sketch8.addConstraint(Sketcher.Constraint("Vertical", 5))
sketch8.addConstraint(Sketcher.Constraint("Horizontal", 6))
sketch8.addConstraint(Sketcher.Constraint("Vertical", 7))
sketch8.addConstraint(Sketcher.Constraint("Horizontal", 8))
sketch8.addConstraint(Sketcher.Constraint("Vertical", 9))
sketch8.addConstraint(Sketcher.Constraint("Horizontal", 10))
sketch8.addConstraint(Sketcher.Constraint("Vertical", 11))
sketch8.addConstraint(Sketcher.Constraint("Horizontal", 12))
sketch8.addConstraint(Sketcher.Constraint("Vertical", 13))
sketch8.addConstraint(Sketcher.Constraint("Horizontal", 14))
sketch8.addConstraint(Sketcher.Constraint("Vertical", 15))
sketch8.addConstraint(Sketcher.Constraint("Horizontal", 2, 2, 5, 2))
sketch8.addConstraint(Sketcher.Constraint("Horizontal", 8, 2, 11, 2))
sketch8.addConstraint(Sketcher.Constraint("Vertical", 5, 2, 8, 2))
sketch8.addConstraint(Sketcher.Constraint("Vertical", 3, 2, 10, 2))
sketch8.addConstraint(Sketcher.Constraint("Vertical", 1, 2, 12, 2))
sketch8.addConstraint(Sketcher.Constraint("Equal", 5, 9))
sketch8.addConstraint(Sketcher.Constraint("Equal", 1, 13))
sketch8.addConstraint(Sketcher.Constraint("DistanceX", 0, 2, 0, 1, 3.0))
sketch8.addConstraint(Sketcher.Constraint("DistanceY", 15, 2, 15, 1, 16.0))
sketch8.addConstraint(Sketcher.Constraint("DistanceX", 2, 2, 2, 1, 4.4))
sketch8.addConstraint(Sketcher.Constraint("DistanceX", 4, 2, 4, 1, 2.6))
sketch8.addConstraint(Sketcher.Constraint("DistanceX", -1, 1, 0, 2, 67.0))
sketch8.addConstraint(Sketcher.Constraint("DistanceX", 6, 2, 6, 1, 2.08))
sketch8.addConstraint(Sketcher.Constraint("DistanceY", 1, 1, 1, 2, 6.53))
sketch8.addConstraint(Sketcher.Constraint("DistanceY", 3, 2, 3, 1, 1.78))
sketch8.addConstraint(Sketcher.Constraint("DistanceY", 0, 2, -1, 1, 30.5))
pad3 = body.newObject("PartDesign::Pad", "Pad002")
pad3.Profile = sketch8
pad3.Length = 3

# Sketch on XZ plane
sketch9 = body.newObject("Sketcher::SketchObject", "Sketch008")
sketch9.AttachmentSupport = (doc.getObject("XZ_Plane"), [""])
sketch9.MapMode = "FlatFace"
sketch9.AttachmentOffset = App.Placement(Vector(0, 0, -3), App.Rotation())
add_polygon(sketch9, [(-70, -70), (-70, -67), (-67, -67), (-67, -70)])  # lines 0-3
sketch9.addConstraint(Sketcher.Constraint("Vertical", 0))
sketch9.addConstraint(Sketcher.Constraint("Horizontal", 1))
sketch9.addConstraint(Sketcher.Constraint("Vertical", 2))
sketch9.addConstraint(Sketcher.Constraint("Horizontal", 3))
sketch9.addConstraint(Sketcher.Constraint("Equal", 3, 0))
sketch9.addConstraint(Sketcher.Constraint("DistanceX", 1, 1, 1, 2, 3.0))
sketch9.addConstraint(Sketcher.Constraint("DistanceX", 0, 2, -1, 1, 70.0))
sketch9.addConstraint(Sketcher.Constraint("DistanceY", 0, 2, -1, 1, 67.0))
pad4 = body.newObject("PartDesign::Pad", "Pad003")
pad4.Profile = sketch9
pad4.Length = 3

# Sketch on XZ plane
sketch10 = body.newObject("Sketcher::SketchObject", "Sketch009")
sketch10.AttachmentSupport = (doc.getObject("XZ_Plane"), [""])
sketch10.MapMode = "FlatFace"
sketch10.AttachmentOffset = App.Placement(Vector(0, 0, -3), App.Rotation())
add_polygon(sketch10, [(67, -70), (67, -67), (70, -67), (70, -70)])  # lines 0-3
sketch10.addConstraint(Sketcher.Constraint("Vertical", 0))
sketch10.addConstraint(Sketcher.Constraint("Horizontal", 1))
sketch10.addConstraint(Sketcher.Constraint("Vertical", 2))
sketch10.addConstraint(Sketcher.Constraint("Horizontal", 3))
sketch10.addConstraint(Sketcher.Constraint("Equal", 3, 0))
sketch10.addConstraint(Sketcher.Constraint("DistanceX", 1, 1, 1, 2, 3.0))
sketch10.addConstraint(Sketcher.Constraint("DistanceX", -1, 1, 0, 2, 67.0))
sketch10.addConstraint(Sketcher.Constraint("DistanceY", 0, 2, -1, 1, 67.0))
pad5 = body.newObject("PartDesign::Pad", "Pad004")
pad5.Profile = sketch10
pad5.Length = 3

# Sketch on XZ plane
sketch11 = body.newObject("Sketcher::SketchObject", "Sketch010")
sketch11.AttachmentSupport = (doc.getObject("XZ_Plane"), [""])
sketch11.MapMode = "FlatFace"
sketch11.AttachmentOffset = App.Placement(Vector(0, 0, -3), App.Rotation())
add_polygon(sketch11, [(-14.5, -70), (-30.5, -70), (-30.5, -67), (-23.97, -67), (-23.97, -62.6), (-25.75, -62.6), (-25.75, -60), (-23.97, -60), (-23.97, -57.92), (-21.03, -57.92), (-21.03, -60), (-19.25, -60), (-19.25, -62.6), (-21.03, -62.6), (-21.03, -67), (-14.5, -67)])  # lines 0-15
add_polygon(sketch11, [(30.5, -70), (14.5, -70), (14.5, -67), (21.03, -67), (21.03, -62.6), (19.25, -62.6), (19.25, -60), (21.03, -60), (21.03, -57.92), (23.97, -57.92), (23.97, -60), (25.75, -60), (25.75, -62.6), (23.97, -62.6), (23.97, -67), (30.5, -67)])  # lines 16-31
sketch11.addConstraint(Sketcher.Constraint("Horizontal", 0))
sketch11.addConstraint(Sketcher.Constraint("Vertical", 1))
sketch11.addConstraint(Sketcher.Constraint("Horizontal", 2))
sketch11.addConstraint(Sketcher.Constraint("Vertical", 3))
sketch11.addConstraint(Sketcher.Constraint("Horizontal", 4))
sketch11.addConstraint(Sketcher.Constraint("Vertical", 5))
sketch11.addConstraint(Sketcher.Constraint("Horizontal", 6))
sketch11.addConstraint(Sketcher.Constraint("Vertical", 7))
sketch11.addConstraint(Sketcher.Constraint("Horizontal", 8))
sketch11.addConstraint(Sketcher.Constraint("Vertical", 9))
sketch11.addConstraint(Sketcher.Constraint("Horizontal", 10))
sketch11.addConstraint(Sketcher.Constraint("Vertical", 11))
sketch11.addConstraint(Sketcher.Constraint("Horizontal", 12))
sketch11.addConstraint(Sketcher.Constraint("Vertical", 13))
sketch11.addConstraint(Sketcher.Constraint("Horizontal", 14))
sketch11.addConstraint(Sketcher.Constraint("Vertical", 15))
sketch11.addConstraint(Sketcher.Constraint("Horizontal", 16))
sketch11.addConstraint(Sketcher.Constraint("Vertical", 17))
sketch11.addConstraint(Sketcher.Constraint("Horizontal", 18))
sketch11.addConstraint(Sketcher.Constraint("Vertical", 19))
sketch11.addConstraint(Sketcher.Constraint("Horizontal", 20))
sketch11.addConstraint(Sketcher.Constraint("Vertical", 21))
sketch11.addConstraint(Sketcher.Constraint("Horizontal", 22))
sketch11.addConstraint(Sketcher.Constraint("Vertical", 23))
sketch11.addConstraint(Sketcher.Constraint("Horizontal", 24))
sketch11.addConstraint(Sketcher.Constraint("Vertical", 25))
sketch11.addConstraint(Sketcher.Constraint("Horizontal", 26))
sketch11.addConstraint(Sketcher.Constraint("Vertical", 27))
sketch11.addConstraint(Sketcher.Constraint("Horizontal", 28))
sketch11.addConstraint(Sketcher.Constraint("Vertical", 29))
sketch11.addConstraint(Sketcher.Constraint("Horizontal", 30))
sketch11.addConstraint(Sketcher.Constraint("Vertical", 31))
sketch11.addConstraint(Sketcher.Constraint("Symmetric", 15, 2, 16, 2, -2))
sketch11.addConstraint(Sketcher.Constraint("Symmetric", 13, 2, 18, 2, -2))
sketch11.addConstraint(Sketcher.Constraint("Symmetric", 11, 2, 20, 2, -2))
sketch11.addConstraint(Sketcher.Constraint("Symmetric", 9, 2, 22, 2, -2))
sketch11.addConstraint(Sketcher.Constraint("Symmetric", 7, 2, 24, 2, -2))
sketch11.addConstraint(Sketcher.Constraint("Symmetric", 5, 2, 26, 2, -2))
sketch11.addConstraint(Sketcher.Constraint("Symmetric", 3, 2, 28, 2, -2))
sketch11.addConstraint(Sketcher.Constraint("Symmetric", 1, 2, 30, 2, -2))
sketch11.addConstraint(Sketcher.Constraint("Horizontal", 6, 2, 9, 2))
sketch11.addConstraint(Sketcher.Constraint("Horizontal", 4, 2, 11, 2))
sketch11.addConstraint(Sketcher.Constraint("Horizontal", 2, 2, 13, 2))
sketch11.addConstraint(Sketcher.Constraint("Vertical", 3, 2, 6, 2))
sketch11.addConstraint(Sketcher.Constraint("Vertical", 9, 2, 12, 2))
sketch11.addConstraint(Sketcher.Constraint("Equal", 6, 10))
sketch11.addConstraint(Sketcher.Constraint("Equal", 2, 14))
sketch11.addConstraint(Sketcher.Constraint("DistanceX", 0, 2, 0, 1, 16.0))
sketch11.addConstraint(Sketcher.Constraint("DistanceY", 1, 1, 1, 2, 3.0))
sketch11.addConstraint(Sketcher.Constraint("DistanceY", 3, 1, 3, 2, 4.4))
sketch11.addConstraint(Sketcher.Constraint("DistanceY", 5, 1, 5, 2, 2.6))
sketch11.addConstraint(Sketcher.Constraint("DistanceY", 0, 2, -1, 1, 70.0))
sketch11.addConstraint(Sketcher.Constraint("DistanceX", 15, 2, 16, 2, 29.0))
sketch11.addConstraint(Sketcher.Constraint("DistanceX", 2, 1, 2, 2, 6.53))
sketch11.addConstraint(Sketcher.Constraint("DistanceX", 4, 2, 4, 1, 1.78))
sketch11.addConstraint(Sketcher.Constraint("DistanceY", 7, 1, 7, 2, 2.08))
pad6 = body.newObject("PartDesign::Pad", "Pad005")
pad6.Profile = sketch11
pad6.Length = 3

# Sketch on XZ plane
sketch12 = body.newObject("Sketcher::SketchObject", "Sketch011")
sketch12.AttachmentSupport = (doc.getObject("XZ_Plane"), [""])
sketch12.MapMode = "FlatFace"
sketch12.AttachmentOffset = App.Placement(Vector(0, 0, -3), App.Rotation())
add_polygon(sketch12, [(-70, 0), (-70, 1), (70, 1), (70, 0)])  # lines 0-3
sketch12.addConstraint(Sketcher.Constraint("Vertical", 0))
sketch12.addConstraint(Sketcher.Constraint("Horizontal", 1))
sketch12.addConstraint(Sketcher.Constraint("Vertical", 2))
sketch12.addConstraint(Sketcher.Constraint("Horizontal", 3))
sketch12.addConstraint(Sketcher.Constraint("Symmetric", 2, 2, 3, 2, -1, 1))
sketch12.addConstraint(Sketcher.Constraint("DistanceX", 1, 1, 1, 2, 140.0))
sketch12.addConstraint(Sketcher.Constraint("DistanceY", 0, 1, 0, 2, 1.0))
pocket6 = body.newObject("PartDesign::Pocket", "Pocket005")
pocket6.Profile = sketch12
pocket6.Length = 3
pocket6.Reversed = True

# Sketch on XZ plane
sketch13 = body.newObject("Sketcher::SketchObject", "Sketch012")
sketch13.AttachmentSupport = (doc.getObject("XZ_Plane"), [""])
sketch13.MapMode = "FlatFace"
sketch13.AttachmentOffset = App.Placement(Vector(0, 0, -3), App.Rotation())
add_polygon(sketch13, [(-70, -70), (-70, 0), (70, 0), (70, -70)])  # lines 0-3
sketch13.addConstraint(Sketcher.Constraint("Vertical", 0))
sketch13.addConstraint(Sketcher.Constraint("Horizontal", 1))
sketch13.addConstraint(Sketcher.Constraint("Vertical", 2))
sketch13.addConstraint(Sketcher.Constraint("Horizontal", 3))
sketch13.addConstraint(Sketcher.Constraint("Symmetric", 0, 2, 1, 2, -1, 1))
sketch13.addConstraint(Sketcher.Constraint("DistanceX", 1, 1, 1, 2, 140.0))
sketch13.addConstraint(Sketcher.Constraint("DistanceY", 0, 1, 0, 2, 70.0))
pocket7 = body.newObject("PartDesign::Pocket", "Pocket006")
pocket7.Profile = sketch13
pocket7.Length = 3
pocket7.Reversed = True

# Sketch on XZ plane
sketch14 = body.newObject("Sketcher::SketchObject", "Sketch013")
sketch14.AttachmentSupport = (doc.getObject("XZ_Plane"), [""])
sketch14.MapMode = "FlatFace"
sketch14.AttachmentOffset = App.Placement(Vector(0, 0, -3), App.Rotation())
sketch14.addGeometry(Part.Circle(Vector(0, 11, 0), Vector(0, 0, 1), 3.99), False)
sketch14.addGeometry(Part.Circle(Vector(-60, 60, 0), Vector(0, 0, 1), 3.99), False)
sketch14.addConstraint(Sketcher.Constraint("Equal", 0, 1))
sketch14.addConstraint(Sketcher.Constraint("PointOnObject", 0, 3, -2))
sketch14.addConstraint(Sketcher.Constraint("Diameter", 0, 7.98))
sketch14.addConstraint(Sketcher.Constraint("DistanceY", -1, 1, 0, 3, 11.0))
sketch14.addConstraint(Sketcher.Constraint("DistanceX", 1, 3, -1, 1, 60.0))
sketch14.addConstraint(Sketcher.Constraint("DistanceY", -1, 1, 1, 3, 60.0))
pocket8 = body.newObject("PartDesign::Pocket", "Pocket007")
pocket8.Profile = sketch14
pocket8.Length = 3
pocket8.Reversed = True

# Sketch on XZ plane
sketch15 = body.newObject("Sketcher::SketchObject", "Sketch014")
sketch15.AttachmentSupport = (doc.getObject("XZ_Plane"), [""])
sketch15.MapMode = "FlatFace"
sketch15.AttachmentOffset = App.Placement(Vector(0, 0, -3), App.Rotation())
sketch15.addGeometry(Part.Circle(Vector(-45, 59.9, 0), Vector(0, 0, 1), 3.935), False)
sketch15.addConstraint(Sketcher.Constraint("Diameter", 0, 7.87))
sketch15.addConstraint(Sketcher.Constraint("DistanceX", 0, 3, -1, 1, 45.0))
sketch15.addConstraint(Sketcher.Constraint("DistanceY", -1, 1, 0, 3, 59.9))
pocket9 = body.newObject("PartDesign::Pocket", "Pocket008")
pocket9.Profile = sketch15
pocket9.Length = 3
pocket9.Reversed = True

doc.recompute()
